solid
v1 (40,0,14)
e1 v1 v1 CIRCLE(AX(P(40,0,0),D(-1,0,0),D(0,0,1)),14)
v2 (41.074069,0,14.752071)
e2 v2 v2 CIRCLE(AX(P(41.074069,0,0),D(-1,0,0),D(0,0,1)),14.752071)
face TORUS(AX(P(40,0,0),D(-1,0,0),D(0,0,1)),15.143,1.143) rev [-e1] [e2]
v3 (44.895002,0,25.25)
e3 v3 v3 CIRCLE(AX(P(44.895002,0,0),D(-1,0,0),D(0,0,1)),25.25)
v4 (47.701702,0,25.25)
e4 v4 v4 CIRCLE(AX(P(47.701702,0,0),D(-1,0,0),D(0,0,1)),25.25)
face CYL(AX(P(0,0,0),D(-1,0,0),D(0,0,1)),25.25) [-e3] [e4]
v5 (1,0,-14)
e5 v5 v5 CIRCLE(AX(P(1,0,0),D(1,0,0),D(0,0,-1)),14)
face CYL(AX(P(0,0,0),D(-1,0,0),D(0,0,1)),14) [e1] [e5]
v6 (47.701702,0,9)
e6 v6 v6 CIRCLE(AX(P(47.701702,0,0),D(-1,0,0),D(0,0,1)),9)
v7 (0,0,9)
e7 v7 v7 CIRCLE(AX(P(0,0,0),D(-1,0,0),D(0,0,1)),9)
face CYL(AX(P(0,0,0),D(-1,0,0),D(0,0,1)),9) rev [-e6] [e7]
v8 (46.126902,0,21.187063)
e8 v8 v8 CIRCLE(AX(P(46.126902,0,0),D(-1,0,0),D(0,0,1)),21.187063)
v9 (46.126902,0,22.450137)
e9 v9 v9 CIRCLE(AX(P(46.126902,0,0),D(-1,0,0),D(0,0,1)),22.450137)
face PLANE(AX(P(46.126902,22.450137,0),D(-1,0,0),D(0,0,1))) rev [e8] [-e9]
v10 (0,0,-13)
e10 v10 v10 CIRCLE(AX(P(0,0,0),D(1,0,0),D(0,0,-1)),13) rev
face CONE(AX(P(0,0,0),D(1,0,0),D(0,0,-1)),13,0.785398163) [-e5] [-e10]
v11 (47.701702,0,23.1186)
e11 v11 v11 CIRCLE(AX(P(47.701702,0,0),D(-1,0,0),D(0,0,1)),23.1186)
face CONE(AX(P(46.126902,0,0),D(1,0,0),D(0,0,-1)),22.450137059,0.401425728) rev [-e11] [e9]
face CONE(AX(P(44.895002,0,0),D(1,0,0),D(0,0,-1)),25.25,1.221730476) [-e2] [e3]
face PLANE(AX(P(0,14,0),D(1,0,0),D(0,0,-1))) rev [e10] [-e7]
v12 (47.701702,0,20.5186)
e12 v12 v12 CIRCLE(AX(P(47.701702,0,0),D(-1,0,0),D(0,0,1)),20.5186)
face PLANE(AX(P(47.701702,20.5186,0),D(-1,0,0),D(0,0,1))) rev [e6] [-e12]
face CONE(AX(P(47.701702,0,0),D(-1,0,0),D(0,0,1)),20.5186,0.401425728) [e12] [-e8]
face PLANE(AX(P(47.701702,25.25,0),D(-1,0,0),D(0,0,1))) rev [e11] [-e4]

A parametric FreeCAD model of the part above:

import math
import FreeCAD as App
import Part
import Sketcher
from FreeCAD import Vector
Q = App.Units.Quantity


def edges_at(feature, points):
    """Names of the edges that pass closest to the given points."""
    edges = feature.Shape.Edges
    near = lambda p: min(range(len(edges)), key=lambda i: edges[i].distToShape(Part.Vertex(*p))[0])
    return sorted({f"Edge{near(p) + 1}" for p in points})

doc = App.newDocument("Part")
body = doc.addObject("PartDesign::Body", "Body")

sketch1 = body.newObject("Sketcher::SketchObject", "Sketch")
sketch1.AttachmentSupport = (doc.getObject("XY_Plane"), [""])
sketch1.MapMode = "FlatFace"
sketch1.addGeometry([
    Part.LineSegment(Vector(44.9, 25.2, 0), Vector(41.1, 14.8, 0)),
    Part.ArcOfCircle(Part.Circle(Vector(40, 15.1, 0), Vector(0, 0, 1), 1.1), math.radians(-90), math.radians(-20)),
    Part.LineSegment(Vector(40, 14, 0), Vector(0, 14, 0)),
    Part.LineSegment(Vector(0, 14, 0), Vector(0, 9, 0)),
    Part.LineSegment(Vector(0, 9, 0), Vector(47.7, 9, 0)),
    Part.LineSegment(Vector(47.7, 9, 0), Vector(47.7, 20.5, 0)),
    Part.LineSegment(Vector(47.7, 20.5, 0), Vector(46.1, 21.2, 0)),
    Part.LineSegment(Vector(46.1, 21.2, 0), Vector(46.1, 22.5, 0)),
    Part.LineSegment(Vector(46.1, 22.5, 0), Vector(47.7, 23.1, 0)),
    Part.LineSegment(Vector(47.7, 23.1, 0), Vector(47.7, 25.2, 0)),
    Part.LineSegment(Vector(47.7, 25.2, 0), Vector(44.9, 25.2, 0)),
], False)
sketch1.addConstraint([
    Sketcher.Constraint("Tangent", 0, 2, 1, 2),
    Sketcher.Constraint("Tangent", 1, 1, 2, 1),
    Sketcher.Constraint("Coincident", 2, 2, 3, 1),
    Sketcher.Constraint("Coincident", 3, 2, 4, 1),
    Sketcher.Constraint("Coincident", 4, 2, 5, 1),
    Sketcher.Constraint("Coincident", 5, 2, 6, 1),
    Sketcher.Constraint("Coincident", 6, 2, 7, 1),
    Sketcher.Constraint("Coincident", 7, 2, 8, 1),
    Sketcher.Constraint("Coincident", 8, 2, 9, 1),
    Sketcher.Constraint("Coincident", 9, 2, 10, 1),
    Sketcher.Constraint("Coincident", 10, 2, 0, 1),
    Sketcher.Constraint("Horizontal", 2),
    Sketcher.Constraint("Vertical", 3),
    Sketcher.Constraint("Horizontal", 4),
    Sketcher.Constraint("Vertical", 5),
    Sketcher.Constraint("Vertical", 7),
    Sketcher.Constraint("Vertical", 9),
    Sketcher.Constraint("Horizontal", 10),
    Sketcher.Constraint("PointOnObject", 2, 2, -2),
    Sketcher.Constraint("Vertical", 5, 2, 8, 2),
    Sketcher.Constraint("Equal", 6, 8),
    Sketcher.Constraint("DistanceX", 2, 2, 2, 1, 40.0),
    Sketcher.Constraint("DistanceY", 3, 2, 3, 1, 5.0),
    Sketcher.Constraint("Angle", 0, Q("-110 deg")),
    Sketcher.Constraint("Angle", 6, Q("157 deg")),
    Sketcher.Constraint("DistanceY", -1, 1, 1, 1, 14.0),
    Sketcher.Constraint("Radius", 1, 1.143),
    Sketcher.Constraint("DistanceY", 5, 2, 8, 2, 2.6),
    Sketcher.Constraint("DistanceY", -1, 1, 9, 2, 25.25),
    Sketcher.Constraint("DistanceX", 10, 2, 10, 1, 2.8067),
    Sketcher.Constraint("DistanceY", 5, 1, 5, 2, 11.5186),
    Sketcher.Constraint("Distance", 6, 1.7108),
])
revolution = body.newObject("PartDesign::Revolution", "Revolution")
revolution.Profile = sketch1
revolution.ReferenceAxis = (sketch1, ["H_Axis"])
revolution.Angle = 360
doc.recompute()

chamfer = body.newObject("PartDesign::Chamfer", "Chamfer")
chamfer.Base = (revolution, edges_at(revolution, [(0, -14, 0)]))
chamfer.Size = 1

doc.recompute()
